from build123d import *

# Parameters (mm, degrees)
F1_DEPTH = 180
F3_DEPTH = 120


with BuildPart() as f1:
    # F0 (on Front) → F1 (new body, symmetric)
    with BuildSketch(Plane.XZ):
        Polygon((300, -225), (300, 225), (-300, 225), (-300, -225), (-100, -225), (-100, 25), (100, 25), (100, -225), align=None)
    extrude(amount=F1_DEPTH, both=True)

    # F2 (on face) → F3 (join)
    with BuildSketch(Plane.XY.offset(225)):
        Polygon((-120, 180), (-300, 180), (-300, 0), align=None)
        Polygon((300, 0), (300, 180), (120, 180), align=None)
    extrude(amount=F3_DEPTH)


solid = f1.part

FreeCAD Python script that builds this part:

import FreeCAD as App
import Part
import Sketcher


def add_polygon(sketch, points):
    """Adds a closed chain of lines whose ends are joined by coincident constraints."""
    first, n = sketch.GeometryCount, len(points)
    for a, b in zip(points, points[1:] + points[:1]):
        sketch.addGeometry(Part.LineSegment(App.Vector(*a, 0), App.Vector(*b, 0)), False)
    for i in range(n):
        sketch.addConstraint(Sketcher.Constraint("Coincident", first + i, 2, first + (i + 1) % n, 1))

doc = App.newDocument("Part")
body = doc.addObject("PartDesign::Body", "Body")

# Sketch on XZ plane
sketch1 = body.newObject("Sketcher::SketchObject", "Sketch")
sketch1.AttachmentSupport = (doc.getObject("XZ_Plane"), [""])
sketch1.MapMode = "FlatFace"
add_polygon(sketch1, [(300, -225), (300, 225), (-300, 225), (-300, -225), (-100, -225), (-100, 25), (100, 25), (100, -225)])  # lines 0-7
sketch1.addConstraint([
    Sketcher.Constraint("Vertical", 0),
    Sketcher.Constraint("Horizontal", 1),
    Sketcher.Constraint("Vertical", 2),
    Sketcher.Constraint("Horizontal", 3),
    Sketcher.Constraint("Vertical", 4),
    Sketcher.Constraint("Horizontal", 5),
    Sketcher.Constraint("Vertical", 6),
    Sketcher.Constraint("Horizontal", 7),
    Sketcher.Constraint("Symmetric", 0, 2, 2, 2, -1, 1),
    Sketcher.Constraint("Symmetric", 3, 2, 6, 2, -2),
    Sketcher.Constraint("Equal", 3, 5),
    Sketcher.Constraint("DistanceX", 1, 2, 1, 1, 600.0),
    Sketcher.Constraint("DistanceY", 0, 1, 0, 2, 450.0),
    Sketcher.Constraint("DistanceY", 4, 1, 4, 2, 250.0),
])
pad1 = body.newObject("PartDesign::Pad", "Pad")
pad1.Profile = sketch1
pad1.Length = 360
pad1.Midplane = True

# Sketch on XY plane
sketch2 = body.newObject("Sketcher::SketchObject", "Sketch001")
sketch2.AttachmentSupport = (doc.getObject("XY_Plane"), [""])
sketch2.MapMode = "FlatFace"
sketch2.AttachmentOffset = App.Placement(App.Vector(0, 0, 225), App.Rotation())
add_polygon(sketch2, [(-120, 180), (-300, 180), (-300, 0)])  # lines 0-2
add_polygon(sketch2, [(300, 0), (300, 180), (120, 180)])  # lines 3-5
sketch2.addConstraint([
    Sketcher.Constraint("Horizontal", 0),
    Sketcher.Constraint("Vertical", 1),
    Sketcher.Constraint("Vertical", 3),
    Sketcher.Constraint("Horizontal", 4),
    Sketcher.Constraint("Symmetric", 1, 2, 5, 2, -1, 1),
    Sketcher.Constraint("Symmetric", 2, 2, 4, 2, -2),
    Sketcher.Constraint("PointOnObject", 1, 2, -1),
    Sketcher.Constraint("Perpendicular", 2, 5),
    Sketcher.Constraint("DistanceX", 0, 2, 0, 1, 180.0),
    Sketcher.Constraint("DistanceX", 0, 2, -1, 1, 300.0),
])
pad2 = body.newObject("PartDesign::Pad", "Pad001")
pad2.Profile = sketch2
pad2.Length = 120

doc.recompute()
